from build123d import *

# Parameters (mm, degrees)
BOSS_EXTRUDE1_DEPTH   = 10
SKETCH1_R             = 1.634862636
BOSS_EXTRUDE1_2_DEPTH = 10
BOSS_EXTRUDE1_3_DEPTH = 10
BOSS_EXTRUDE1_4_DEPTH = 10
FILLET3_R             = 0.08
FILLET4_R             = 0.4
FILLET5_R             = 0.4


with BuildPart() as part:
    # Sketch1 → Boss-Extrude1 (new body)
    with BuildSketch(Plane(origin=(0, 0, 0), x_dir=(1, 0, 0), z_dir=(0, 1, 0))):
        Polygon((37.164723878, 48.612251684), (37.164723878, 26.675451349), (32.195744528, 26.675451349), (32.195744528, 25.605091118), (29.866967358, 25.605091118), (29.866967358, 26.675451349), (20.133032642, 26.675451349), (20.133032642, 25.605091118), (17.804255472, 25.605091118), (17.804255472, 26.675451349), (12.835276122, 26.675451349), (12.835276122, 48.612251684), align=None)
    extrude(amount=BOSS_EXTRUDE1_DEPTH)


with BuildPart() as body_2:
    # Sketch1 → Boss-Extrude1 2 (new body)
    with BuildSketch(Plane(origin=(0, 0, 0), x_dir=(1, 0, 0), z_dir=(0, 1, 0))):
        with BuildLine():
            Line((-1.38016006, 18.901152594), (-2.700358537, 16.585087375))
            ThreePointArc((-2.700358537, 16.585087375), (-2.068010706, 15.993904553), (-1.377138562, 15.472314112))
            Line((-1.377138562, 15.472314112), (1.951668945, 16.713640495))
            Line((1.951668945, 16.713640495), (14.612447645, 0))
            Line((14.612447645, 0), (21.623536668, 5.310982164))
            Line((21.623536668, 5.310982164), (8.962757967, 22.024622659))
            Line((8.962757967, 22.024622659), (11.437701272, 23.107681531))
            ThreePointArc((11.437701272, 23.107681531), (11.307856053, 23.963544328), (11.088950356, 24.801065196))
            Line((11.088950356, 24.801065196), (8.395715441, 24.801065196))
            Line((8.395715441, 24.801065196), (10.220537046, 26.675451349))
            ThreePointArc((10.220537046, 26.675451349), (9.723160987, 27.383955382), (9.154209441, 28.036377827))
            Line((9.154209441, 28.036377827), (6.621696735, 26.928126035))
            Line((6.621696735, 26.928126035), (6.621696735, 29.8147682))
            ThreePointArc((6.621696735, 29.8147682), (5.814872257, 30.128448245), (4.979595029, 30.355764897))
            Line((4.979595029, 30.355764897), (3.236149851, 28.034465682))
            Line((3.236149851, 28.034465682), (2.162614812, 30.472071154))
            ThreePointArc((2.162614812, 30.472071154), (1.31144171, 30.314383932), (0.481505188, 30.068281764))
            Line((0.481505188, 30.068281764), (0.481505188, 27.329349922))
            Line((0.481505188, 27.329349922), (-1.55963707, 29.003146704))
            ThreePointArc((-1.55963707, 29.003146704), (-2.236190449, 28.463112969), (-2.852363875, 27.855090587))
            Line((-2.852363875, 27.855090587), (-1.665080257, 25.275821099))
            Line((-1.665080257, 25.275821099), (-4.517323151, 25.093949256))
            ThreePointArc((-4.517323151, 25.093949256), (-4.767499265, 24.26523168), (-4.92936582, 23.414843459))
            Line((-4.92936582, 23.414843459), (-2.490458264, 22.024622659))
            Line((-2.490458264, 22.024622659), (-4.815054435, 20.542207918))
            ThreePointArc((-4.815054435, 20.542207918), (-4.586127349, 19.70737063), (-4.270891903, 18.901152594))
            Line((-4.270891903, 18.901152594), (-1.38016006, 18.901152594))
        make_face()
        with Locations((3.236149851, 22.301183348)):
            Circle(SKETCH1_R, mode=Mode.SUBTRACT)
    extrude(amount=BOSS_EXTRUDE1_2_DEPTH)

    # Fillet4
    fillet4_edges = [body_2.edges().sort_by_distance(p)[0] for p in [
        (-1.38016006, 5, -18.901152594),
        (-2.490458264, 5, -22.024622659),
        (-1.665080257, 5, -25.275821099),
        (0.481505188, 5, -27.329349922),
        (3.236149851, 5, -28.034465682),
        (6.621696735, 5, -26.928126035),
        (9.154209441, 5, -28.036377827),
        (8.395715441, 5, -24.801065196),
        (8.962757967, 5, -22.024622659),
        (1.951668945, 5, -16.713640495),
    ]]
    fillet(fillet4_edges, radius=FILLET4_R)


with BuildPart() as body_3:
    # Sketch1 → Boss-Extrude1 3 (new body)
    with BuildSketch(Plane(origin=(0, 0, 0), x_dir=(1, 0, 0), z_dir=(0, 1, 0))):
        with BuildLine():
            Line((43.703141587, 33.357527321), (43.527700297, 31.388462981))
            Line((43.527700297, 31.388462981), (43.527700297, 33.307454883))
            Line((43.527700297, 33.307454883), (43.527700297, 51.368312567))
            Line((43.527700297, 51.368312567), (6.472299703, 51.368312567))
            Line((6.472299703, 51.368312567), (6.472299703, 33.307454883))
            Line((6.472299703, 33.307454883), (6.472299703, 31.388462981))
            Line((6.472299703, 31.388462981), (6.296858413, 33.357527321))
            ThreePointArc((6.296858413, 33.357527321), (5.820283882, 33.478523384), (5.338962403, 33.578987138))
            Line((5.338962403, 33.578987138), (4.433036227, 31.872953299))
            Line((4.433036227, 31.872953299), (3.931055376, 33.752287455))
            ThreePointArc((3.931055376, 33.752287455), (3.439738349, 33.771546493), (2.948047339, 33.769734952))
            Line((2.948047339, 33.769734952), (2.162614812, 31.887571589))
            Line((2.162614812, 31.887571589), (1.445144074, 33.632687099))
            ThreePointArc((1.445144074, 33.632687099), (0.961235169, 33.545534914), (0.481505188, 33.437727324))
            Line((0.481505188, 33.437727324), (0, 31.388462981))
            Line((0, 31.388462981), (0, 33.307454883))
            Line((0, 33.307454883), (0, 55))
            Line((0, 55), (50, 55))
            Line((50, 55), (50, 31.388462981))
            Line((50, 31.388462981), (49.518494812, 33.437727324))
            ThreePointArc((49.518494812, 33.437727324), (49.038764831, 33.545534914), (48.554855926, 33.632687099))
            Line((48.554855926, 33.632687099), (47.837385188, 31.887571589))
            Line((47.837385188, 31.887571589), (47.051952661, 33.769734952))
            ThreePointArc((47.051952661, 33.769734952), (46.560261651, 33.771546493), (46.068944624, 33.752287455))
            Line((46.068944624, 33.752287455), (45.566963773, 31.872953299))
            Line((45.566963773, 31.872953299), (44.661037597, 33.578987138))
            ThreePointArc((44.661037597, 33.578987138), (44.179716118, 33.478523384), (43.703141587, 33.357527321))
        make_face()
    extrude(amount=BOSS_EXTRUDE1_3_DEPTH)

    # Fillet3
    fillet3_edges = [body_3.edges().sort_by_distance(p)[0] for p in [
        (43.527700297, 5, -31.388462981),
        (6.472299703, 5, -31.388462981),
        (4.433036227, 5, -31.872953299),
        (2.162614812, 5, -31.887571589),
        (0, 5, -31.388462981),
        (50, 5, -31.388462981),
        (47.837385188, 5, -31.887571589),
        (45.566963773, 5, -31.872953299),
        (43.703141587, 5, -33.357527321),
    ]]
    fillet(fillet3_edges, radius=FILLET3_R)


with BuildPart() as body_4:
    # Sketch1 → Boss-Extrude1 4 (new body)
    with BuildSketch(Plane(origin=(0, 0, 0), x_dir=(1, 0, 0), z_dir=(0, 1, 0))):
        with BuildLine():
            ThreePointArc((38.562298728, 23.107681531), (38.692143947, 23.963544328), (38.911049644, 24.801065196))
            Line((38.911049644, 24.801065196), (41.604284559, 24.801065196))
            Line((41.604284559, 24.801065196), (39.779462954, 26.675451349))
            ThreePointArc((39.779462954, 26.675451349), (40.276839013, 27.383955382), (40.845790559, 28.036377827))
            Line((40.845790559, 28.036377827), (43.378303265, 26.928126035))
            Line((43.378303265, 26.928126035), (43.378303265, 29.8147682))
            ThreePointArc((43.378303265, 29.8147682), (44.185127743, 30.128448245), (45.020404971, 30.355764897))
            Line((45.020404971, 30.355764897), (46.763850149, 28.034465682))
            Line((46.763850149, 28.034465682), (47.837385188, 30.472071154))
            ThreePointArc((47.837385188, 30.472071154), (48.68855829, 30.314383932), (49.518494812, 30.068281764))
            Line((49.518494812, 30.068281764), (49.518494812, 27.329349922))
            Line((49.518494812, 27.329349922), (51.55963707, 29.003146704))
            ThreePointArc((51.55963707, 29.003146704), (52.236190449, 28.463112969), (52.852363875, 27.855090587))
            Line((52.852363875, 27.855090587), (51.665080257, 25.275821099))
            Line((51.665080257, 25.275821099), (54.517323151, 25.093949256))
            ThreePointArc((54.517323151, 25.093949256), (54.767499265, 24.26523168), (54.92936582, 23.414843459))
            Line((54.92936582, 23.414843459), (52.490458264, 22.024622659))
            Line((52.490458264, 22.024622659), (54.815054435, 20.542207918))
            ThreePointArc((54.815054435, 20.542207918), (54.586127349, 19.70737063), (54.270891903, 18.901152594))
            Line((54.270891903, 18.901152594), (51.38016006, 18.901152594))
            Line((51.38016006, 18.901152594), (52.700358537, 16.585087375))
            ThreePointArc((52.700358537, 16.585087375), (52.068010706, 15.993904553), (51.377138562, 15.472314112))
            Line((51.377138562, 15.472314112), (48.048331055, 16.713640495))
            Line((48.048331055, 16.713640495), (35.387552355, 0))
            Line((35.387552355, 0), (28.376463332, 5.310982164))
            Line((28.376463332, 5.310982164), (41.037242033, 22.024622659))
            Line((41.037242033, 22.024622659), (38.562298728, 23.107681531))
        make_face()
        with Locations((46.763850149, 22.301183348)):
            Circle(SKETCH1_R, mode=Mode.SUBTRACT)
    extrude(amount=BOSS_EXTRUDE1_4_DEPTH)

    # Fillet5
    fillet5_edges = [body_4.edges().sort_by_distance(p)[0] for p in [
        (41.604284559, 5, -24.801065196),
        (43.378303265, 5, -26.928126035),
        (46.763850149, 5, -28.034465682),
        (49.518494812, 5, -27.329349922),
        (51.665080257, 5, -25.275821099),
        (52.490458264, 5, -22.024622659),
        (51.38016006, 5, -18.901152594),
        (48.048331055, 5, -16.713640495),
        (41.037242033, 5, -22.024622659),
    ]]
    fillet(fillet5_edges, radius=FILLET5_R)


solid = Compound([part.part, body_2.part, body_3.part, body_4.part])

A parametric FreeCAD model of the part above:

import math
import FreeCAD as App
import Part
import Sketcher
from FreeCAD import Vector
Q = App.Units.Quantity


def edges_at(feature, points):
    """Names of the edges that pass closest to the given points."""
    edges = feature.Shape.Edges
    near = lambda p: min(range(len(edges)), key=lambda i: edges[i].distToShape(Part.Vertex(*p))[0])
    return sorted({f"Edge{near(p) + 1}" for p in points})

doc = App.newDocument("Part")
body = doc.addObject("PartDesign::Body", "Body")

# Sketch on XZ plane
sketch1 = doc.addObject("Sketcher::SketchObject", "Sketch")
body.addObject(sketch1)
sketch1.AttachmentSupport = (doc.XZ_Plane, [""])
sketch1.MapMode = "FlatFace"
sketch1.addGeometry(Part.LineSegment(Vector(37.2, -26.7, 0), Vector(37.2, -48.6, 0)), False)
sketch1.addGeometry(Part.LineSegment(Vector(37.2, -48.6, 0), Vector(12.8, -48.6, 0)), False)
sketch1.addGeometry(Part.LineSegment(Vector(12.8, -48.6, 0), Vector(12.8, -26.7, 0)), False)
sketch1.addGeometry(Part.LineSegment(Vector(12.8, -26.7, 0), Vector(17.8, -26.7, 0)), False)
sketch1.addGeometry(Part.LineSegment(Vector(17.8, -26.7, 0), Vector(17.8, -25.6, 0)), False)
sketch1.addGeometry(Part.LineSegment(Vector(17.8, -25.6, 0), Vector(20.1, -25.6, 0)), False)
sketch1.addGeometry(Part.LineSegment(Vector(20.1, -25.6, 0), Vector(20.1, -26.7, 0)), False)
sketch1.addGeometry(Part.LineSegment(Vector(20.1, -26.7, 0), Vector(29.9, -26.7, 0)), False)
sketch1.addGeometry(Part.LineSegment(Vector(29.9, -26.7, 0), Vector(29.9, -25.6, 0)), False)
sketch1.addGeometry(Part.LineSegment(Vector(29.9, -25.6, 0), Vector(32.2, -25.6, 0)), False)
sketch1.addGeometry(Part.LineSegment(Vector(32.2, -25.6, 0), Vector(32.2, -26.7, 0)), False)
sketch1.addGeometry(Part.LineSegment(Vector(32.2, -26.7, 0), Vector(37.2, -26.7, 0)), False)
sketch1.addConstraint(Sketcher.Constraint("Coincident", 0, 2, 1, 1))
sketch1.addConstraint(Sketcher.Constraint("Coincident", 1, 2, 2, 1))
sketch1.addConstraint(Sketcher.Constraint("Coincident", 2, 2, 3, 1))
sketch1.addConstraint(Sketcher.Constraint("Coincident", 3, 2, 4, 1))
sketch1.addConstraint(Sketcher.Constraint("Coincident", 4, 2, 5, 1))
sketch1.addConstraint(Sketcher.Constraint("Coincident", 5, 2, 6, 1))
sketch1.addConstraint(Sketcher.Constraint("Coincident", 6, 2, 7, 1))
sketch1.addConstraint(Sketcher.Constraint("Coincident", 7, 2, 8, 1))
sketch1.addConstraint(Sketcher.Constraint("Coincident", 8, 2, 9, 1))
sketch1.addConstraint(Sketcher.Constraint("Coincident", 9, 2, 10, 1))
sketch1.addConstraint(Sketcher.Constraint("Coincident", 10, 2, 11, 1))
sketch1.addConstraint(Sketcher.Constraint("Coincident", 11, 2, 0, 1))
sketch1.addConstraint(Sketcher.Constraint("Vertical", 0))
sketch1.addConstraint(Sketcher.Constraint("Horizontal", 1))
sketch1.addConstraint(Sketcher.Constraint("Vertical", 2))
sketch1.addConstraint(Sketcher.Constraint("Horizontal", 3))
sketch1.addConstraint(Sketcher.Constraint("Vertical", 4))
sketch1.addConstraint(Sketcher.Constraint("Horizontal", 5))
sketch1.addConstraint(Sketcher.Constraint("Vertical", 6))
sketch1.addConstraint(Sketcher.Constraint("Horizontal", 7))
sketch1.addConstraint(Sketcher.Constraint("Vertical", 8))
sketch1.addConstraint(Sketcher.Constraint("Horizontal", 9))
sketch1.addConstraint(Sketcher.Constraint("Vertical", 10))
sketch1.addConstraint(Sketcher.Constraint("Horizontal", 11))
sketch1.addConstraint(Sketcher.Constraint("Horizontal", 3, 2, 6, 2))
sketch1.addConstraint(Sketcher.Constraint("Horizontal", 5, 2, 8, 2))
sketch1.addConstraint(Sketcher.Constraint("Horizontal", 7, 2, 10, 2))
sketch1.addConstraint(Sketcher.Constraint("Equal", 5, 9))
sketch1.addConstraint(Sketcher.Constraint("Equal", 3, 11))
sketch1.addConstraint(Sketcher.Constraint("DistanceY", 0, 2, 0, 1, Q("21.9368 mm")))
sketch1.addConstraint(Sketcher.Constraint("DistanceX", 3, 1, 3, 2, Q("4.968979 mm")))
sketch1.addConstraint(Sketcher.Constraint("DistanceY", 4, 1, 4, 2, Q("1.07036 mm")))
sketch1.addConstraint(Sketcher.Constraint("DistanceX", 1, 2, 1, 1, Q("24.329448 mm")))
sketch1.addConstraint(Sketcher.Constraint("DistanceX", 5, 1, 5, 2, Q("2.328777 mm")))
sketch1.addConstraint(Sketcher.Constraint("DistanceY", 0, 2, -1, 1, Q("48.612252 mm")))
sketch1.addConstraint(Sketcher.Constraint("DistanceX", -1, 1, 0, 2, Q("37.164724 mm")))
pad1 = doc.addObject("PartDesign::Pad", "Pad")
body.addObject(pad1)
pad1.Profile = sketch1
pad1.Length = 10
pad1.Reversed = True
body2 = doc.addObject("PartDesign::Body", "Body001")

# Sketch on XZ plane
sketch2 = doc.addObject("Sketcher::SketchObject", "Sketch001")
body2.addObject(sketch2)
sketch2.AttachmentSupport = (doc.getObject("XZ_Plane001"), [""])
sketch2.MapMode = "FlatFace"
sketch2.addGeometry(Part.LineSegment(Vector(-1.38016, -18.901153, 0), Vector(-2.700359, -16.585087, 0)), False)
sketch2.addGeometry(Part.ArcOfCircle(Part.Circle(Vector(3.23615, -22.301183, 0), Vector(0, 0, 1), 8.24111), math.radians(124.041257), math.radians(136.083637)), False)
sketch2.addGeometry(Part.LineSegment(Vector(-1.377139, -15.472314, 0), Vector(1.951669, -16.71364, 0)), False)
sketch2.addGeometry(Part.LineSegment(Vector(1.951669, -16.71364, 0), Vector(14.612448, 0, 0)), False)
sketch2.addGeometry(Part.LineSegment(Vector(14.612448, 0, 0), Vector(21.623537, -5.310982, 0)), False)
sketch2.addGeometry(Part.LineSegment(Vector(21.623537, -5.310982, 0), Vector(8.962758, -22.024623, 0)), False)
sketch2.addGeometry(Part.LineSegment(Vector(8.962758, -22.024623, 0), Vector(11.437701, -23.107682, 0)), False)
sketch2.addGeometry(Part.ArcOfCircle(Part.Circle(Vector(3.23615, -22.301183, 0), Vector(0, 0, 1), 8.241109), math.radians(-17.658495), math.radians(-5.616115)), False)
sketch2.addGeometry(Part.LineSegment(Vector(11.08895, -24.801065, 0), Vector(8.395715, -24.801065, 0)), False)
sketch2.addGeometry(Part.LineSegment(Vector(8.395715, -24.801065, 0), Vector(10.220537, -26.675451, 0)), False)
sketch2.addGeometry(Part.ArcOfCircle(Part.Circle(Vector(3.23615, -22.301183, 0), Vector(0, 0, 1), 8.241109), math.radians(-44.100977), math.radians(-32.058597)), False)
sketch2.addGeometry(Part.LineSegment(Vector(9.154209, -28.036378, 0), Vector(6.621697, -26.928126, 0)), False)
sketch2.addGeometry(Part.LineSegment(Vector(6.621697, -26.928126, 0), Vector(6.621697, -29.814768, 0)), False)
sketch2.addGeometry(Part.ArcOfCircle(Part.Circle(Vector(3.23615, -22.301183, 0), Vector(0, 0, 1), 8.24111), math.radians(-77.786525), math.radians(-65.744145)), False)
sketch2.addGeometry(Part.LineSegment(Vector(4.979595, -30.355765, 0), Vector(3.23615, -28.034466, 0)), False)
sketch2.addGeometry(Part.LineSegment(Vector(3.23615, -28.034466, 0), Vector(2.162615, -30.472071, 0)), False)
sketch2.addGeometry(Part.ArcOfCircle(Part.Circle(Vector(3.23615, -22.301183, 0), Vector(0, 0, 1), 8.241109), math.radians(-109.527334), math.radians(-97.484954)), False)
sketch2.addGeometry(Part.LineSegment(Vector(0.481505, -30.068282, 0), Vector(0.481505, -27.32935, 0)), False)
sketch2.addGeometry(Part.LineSegment(Vector(0.481505, -27.32935, 0), Vector(-1.559637, -29.003147, 0)), False)
sketch2.addGeometry(Part.ArcOfCircle(Part.Circle(Vector(3.23615, -22.301183, 0), Vector(0, 0, 1), 8.241109), math.radians(-137.629109), math.radians(-125.586729)), False)
sketch2.addGeometry(Part.LineSegment(Vector(-2.852364, -27.855091, 0), Vector(-1.66508, -25.275821, 0)), False)
sketch2.addGeometry(Part.LineSegment(Vector(-1.66508, -25.275821, 0), Vector(-4.517323, -25.093949, 0)), False)
sketch2.addGeometry(Part.ArcOfCircle(Part.Circle(Vector(3.23615, -22.301183, 0), Vector(0, 0, 1), 8.241109), math.radians(-172.233589), math.radians(-160.191209)), False)
sketch2.addGeometry(Part.LineSegment(Vector(-4.929366, -23.414843, 0), Vector(-2.490458, -22.024623, 0)), False)
sketch2.addGeometry(Part.LineSegment(Vector(-2.490458, -22.024623, 0), Vector(-4.815054, -20.542208, 0)), False)
sketch2.addGeometry(Part.ArcOfCircle(Part.Circle(Vector(3.23615, -22.301183, 0), Vector(0, 0, 1), 8.24111), math.radians(155.633648), math.radians(167.676028)), False)
sketch2.addGeometry(Part.LineSegment(Vector(-4.270892, -18.901153, 0), Vector(-1.38016, -18.901153, 0)), False)
sketch2.addGeometry(Part.Circle(Vector(3.23615, -22.301183, 0), Vector(0, 0, 1), 1.634863), False)
sketch2.addConstraint(Sketcher.Constraint("Coincident", 0, 2, 1, 2))
sketch2.addConstraint(Sketcher.Constraint("Coincident", 1, 1, 2, 1))
sketch2.addConstraint(Sketcher.Constraint("Coincident", 2, 2, 3, 1))
sketch2.addConstraint(Sketcher.Constraint("Coincident", 3, 2, 4, 1))
sketch2.addConstraint(Sketcher.Constraint("Coincident", 4, 2, 5, 1))
sketch2.addConstraint(Sketcher.Constraint("Coincident", 5, 2, 6, 1))
sketch2.addConstraint(Sketcher.Constraint("Coincident", 6, 2, 7, 2))
sketch2.addConstraint(Sketcher.Constraint("Coincident", 7, 1, 8, 1))
sketch2.addConstraint(Sketcher.Constraint("Coincident", 8, 2, 9, 1))
sketch2.addConstraint(Sketcher.Constraint("Coincident", 9, 2, 10, 2))
sketch2.addConstraint(Sketcher.Constraint("Coincident", 10, 1, 11, 1))
sketch2.addConstraint(Sketcher.Constraint("Coincident", 11, 2, 12, 1))
sketch2.addConstraint(Sketcher.Constraint("Coincident", 12, 2, 13, 2))
sketch2.addConstraint(Sketcher.Constraint("Coincident", 13, 1, 14, 1))
sketch2.addConstraint(Sketcher.Constraint("Coincident", 14, 2, 15, 1))
sketch2.addConstraint(Sketcher.Constraint("Coincident", 15, 2, 16, 2))
sketch2.addConstraint(Sketcher.Constraint("Coincident", 16, 1, 17, 1))
sketch2.addConstraint(Sketcher.Constraint("Coincident", 17, 2, 18, 1))
sketch2.addConstraint(Sketcher.Constraint("Coincident", 18, 2, 19, 2))
sketch2.addConstraint(Sketcher.Constraint("Coincident", 19, 1, 20, 1))
sketch2.addConstraint(Sketcher.Constraint("Coincident", 20, 2, 21, 1))
sketch2.addConstraint(Sketcher.Constraint("Coincident", 21, 2, 22, 2))
sketch2.addConstraint(Sketcher.Constraint("Coincident", 22, 1, 23, 1))
sketch2.addConstraint(Sketcher.Constraint("Coincident", 23, 2, 24, 1))
sketch2.addConstraint(Sketcher.Constraint("Coincident", 24, 2, 25, 2))
sketch2.addConstraint(Sketcher.Constraint("Coincident", 25, 1, 26, 1))
sketch2.addConstraint(Sketcher.Constraint("Coincident", 26, 2, 0, 1))
sketch2.addConstraint(Sketcher.Constraint("Horizontal", 8))
sketch2.addConstraint(Sketcher.Constraint("Vertical", 12))
sketch2.addConstraint(Sketcher.Constraint("Vertical", 17))
sketch2.addConstraint(Sketcher.Constraint("Horizontal", 26))
sketch2.addConstraint(Sketcher.Constraint("Coincident", 7, 3, 1, 3))
sketch2.addConstraint(Sketcher.Constraint("Coincident", 10, 3, 1, 3))
sketch2.addConstraint(Sketcher.Constraint("Coincident", 13, 3, 1, 3))
sketch2.addConstraint(Sketcher.Constraint("Coincident", 16, 3, 1, 3))
sketch2.addConstraint(Sketcher.Constraint("Coincident", 19, 3, 1, 3))
sketch2.addConstraint(Sketcher.Constraint("Coincident", 22, 3, 1, 3))
sketch2.addConstraint(Sketcher.Constraint("Coincident", 25, 3, 1, 3))
sketch2.addConstraint(Sketcher.Constraint("Coincident", 27, 3, 1, 3))
sketch2.addConstraint(Sketcher.Constraint("PointOnObject", 3, 2, -1))
sketch2.addConstraint(Sketcher.Constraint("Radius", 1, Q("8.24111 mm")))
sketch2.addConstraint(Sketcher.Constraint("Radius", 7, Q("8.241109 mm")))
sketch2.addConstraint(Sketcher.Constraint("Radius", 10, Q("8.241109 mm")))
sketch2.addConstraint(Sketcher.Constraint("Radius", 13, Q("8.24111 mm")))
sketch2.addConstraint(Sketcher.Constraint("Radius", 16, Q("8.241109 mm")))
sketch2.addConstraint(Sketcher.Constraint("Radius", 19, Q("8.241109 mm")))
sketch2.addConstraint(Sketcher.Constraint("Radius", 22, Q("8.241109 mm")))
sketch2.addConstraint(Sketcher.Constraint("Radius", 25, Q("8.24111 mm")))
sketch2.addConstraint(Sketcher.Constraint("Diameter", 27, Q("3.269725 mm")))
sketch2.addConstraint(Sketcher.Constraint("DistanceX", 22, 1, 19, 1, Q("2.077002 mm")))
sketch2.addConstraint(Sketcher.Constraint("DistanceX", 26, 1, 26, 2, Q("2.890732 mm")))
sketch2.addConstraint(Sketcher.Constraint("DistanceY", 17, 1, 17, 2, Q("2.738932 mm")))
sketch2.addConstraint(Sketcher.Constraint("DistanceX", -1, 1, 6, 2, Q("11.437701 mm")))
sketch2.addConstraint(Sketcher.Constraint("DistanceY", 7, 3, 4, 2, Q("16.990201 mm")))
sketch2.addConstraint(Sketcher.Constraint("DistanceY", 6, 2, 25, 3, Q("0.806498 mm")))
sketch2.addConstraint(Sketcher.Constraint("DistanceX", 25, 3, 7, 1, Q("7.8528 mm")))
sketch2.addConstraint(Sketcher.Constraint("DistanceX", 13, 1, 12, 2, Q("1.642102 mm")))
sketch2.addConstraint(Sketcher.Constraint("DistanceY", 13, 1, 8, 2, Q("5.5547 mm")))
sketch2.addConstraint(Sketcher.Constraint("DistanceY", 13, 1, 14, 2, Q("2.321299 mm")))
sketch2.addConstraint(Sketcher.Constraint("DistanceY", 17, 2, 21, 2, Q("2.235401 mm")))
sketch2.addConstraint(Sketcher.Constraint("DistanceY", 20, 2, 23, 2, Q("3.251198 mm")))
sketch2.addConstraint(Sketcher.Constraint("DistanceX", 0, 2, 23, 2, Q("0.2099 mm")))
sketch2.addConstraint(Sketcher.Constraint("DistanceX", 0, 2, 26, 2, Q("1.320198 mm")))
sketch2.addConstraint(Sketcher.Constraint("Distance", 0, Q("2.665911 mm")))
sketch2.addConstraint(Sketcher.Constraint("Distance", 3, Q("20.96762 mm")))
sketch2.addConstraint(Sketcher.Constraint("Distance", 4, Q("8.795561 mm")))
sketch2.addConstraint(Sketcher.Constraint("Distance", 5, Q("20.96762 mm")))
sketch2.addConstraint(Sketcher.Constraint("Distance", 9, Q("2.61597 mm")))
sketch2.addConstraint(Sketcher.Constraint("Distance", 11, Q("2.764388 mm")))
sketch2.addConstraint(Sketcher.Constraint("Distance", 15, Q("2.663531 mm")))
sketch2.addConstraint(Sketcher.Constraint("Distance", 18, Q("2.63967 mm")))
sketch2.addConstraint(Sketcher.Constraint("Distance", 23, Q("2.807309 mm")))
sketch2.addConstraint(Sketcher.Constraint("DistanceX", 8, 2, 8, 1, Q("2.693235 mm")))
sketch2.addConstraint(Sketcher.Constraint("DistanceY", 12, 2, 12, 1, Q("2.886642 mm")))
sketch2.addConstraint(Sketcher.Constraint("DistanceX", 1, 1, -1, 1, Q("1.377139 mm")))
sketch2.addConstraint(Sketcher.Constraint("DistanceX", -1, 1, 2, 2, Q("1.951669 mm")))
sketch2.addConstraint(Sketcher.Constraint("DistanceY", 2, 2, -1, 1, Q("16.71364 mm")))
sketch2.addConstraint(Sketcher.Constraint("DistanceY", 6, 2, -1, 1, Q("23.107682 mm")))
sketch2.addConstraint(Sketcher.Constraint("DistanceX", -1, 1, 14, 2, Q("3.23615 mm")))
sketch2.addConstraint(Sketcher.Constraint("DistanceY", 16, 1, -1, 1, Q("30.068282 mm")))
sketch2.addConstraint(Sketcher.Constraint("DistanceY", 19, 1, -1, 1, Q("27.855091 mm")))
sketch2.addConstraint(Sketcher.Constraint("DistanceX", 20, 2, -1, 1, Q("1.66508 mm")))
sketch2.addConstraint(Sketcher.Constraint("DistanceY", 7, 3, 5, 2, Q("0.276561 mm")))
sketch2.addConstraint(Sketcher.Constraint("DistanceX", 22, 1, 24, 2, Q("0.114311 mm")))
pad2 = doc.addObject("PartDesign::Pad", "Pad001")
body2.addObject(pad2)
pad2.Profile = sketch2
pad2.Length = 10
pad2.Reversed = True
doc.recompute()

fillet = doc.addObject("PartDesign::Fillet", "Fillet")
body2.addObject(fillet)
fillet.Base = (pad2, edges_at(pad2, [
    (-1.38, 5, -18.901),
    (-2.49, 5, -22.025),
    (-1.665, 5, -25.276),
    (0.482, 5, -27.329),
    (3.236, 5, -28.034),
    (6.622, 5, -26.928),
    (9.154, 5, -28.036),
    (8.396, 5, -24.801),
    (8.963, 5, -22.025),
    (1.952, 5, -16.714),
]))
fillet.Radius = 0.4
body3 = doc.addObject("PartDesign::Body", "Body002")

# Sketch on XZ plane
sketch3 = doc.addObject("Sketcher::SketchObject", "Sketch002")
body3.addObject(sketch3)
sketch3.AttachmentSupport = (doc.getObject("XZ_Plane002"), [""])
sketch3.MapMode = "FlatFace"
sketch3.addGeometry(Part.LineSegment(Vector(43.5, -31.4, 0), Vector(43.7, -33.4, 0)), False)
sketch3.addGeometry(Part.ArcOfCircle(Part.Circle(Vector(46.8, -22.3, 0), Vector(0, 0, 1), 11.5), math.radians(-105.47), math.radians(-100.56)), False)
sketch3.addGeometry(Part.LineSegment(Vector(44.7, -33.6, 0), Vector(45.6, -31.9, 0)), False)
sketch3.addGeometry(Part.LineSegment(Vector(45.6, -31.9, 0), Vector(46.1, -33.8, 0)), False)
sketch3.addGeometry(Part.ArcOfCircle(Part.Circle(Vector(46.8, -22.3, 0), Vector(0, 0, 1), 11.5), math.radians(-93.47), math.radians(-88.56)), False)
sketch3.addGeometry(Part.LineSegment(Vector(47.1, -33.8, 0), Vector(47.8, -31.9, 0)), False)
sketch3.addGeometry(Part.LineSegment(Vector(47.8, -31.9, 0), Vector(48.6, -33.6, 0)), False)
sketch3.addGeometry(Part.ArcOfCircle(Part.Circle(Vector(46.8, -22.3, 0), Vector(0, 0, 1), 11.5), math.radians(-81.02), math.radians(-76.11)), False)
sketch3.addGeometry(Part.LineSegment(Vector(49.5, -33.4, 0), Vector(50, -31.4, 0)), False)
sketch3.addGeometry(Part.LineSegment(Vector(50, -31.4, 0), Vector(50, -55, 0)), False)
sketch3.addGeometry(Part.LineSegment(Vector(50, -55, 0), Vector(0, -55, 0)), False)
sketch3.addGeometry(Part.LineSegment(Vector(0, -55, 0), Vector(0, -31.4, 0)), False)
sketch3.addGeometry(Part.LineSegment(Vector(0, -31.4, 0), Vector(0.5, -33.4, 0)), False)
sketch3.addGeometry(Part.ArcOfCircle(Part.Circle(Vector(3.2, -22.3, 0), Vector(0, 0, 1), 11.5), math.radians(-103.89), math.radians(-98.98)), False)
sketch3.addGeometry(Part.LineSegment(Vector(1.4, -33.6, 0), Vector(2.2, -31.9, 0)), False)
sketch3.addGeometry(Part.LineSegment(Vector(2.2, -31.9, 0), Vector(2.9, -33.8, 0)), False)
sketch3.addGeometry(Part.ArcOfCircle(Part.Circle(Vector(3.2, -22.3, 0), Vector(0, 0, 1), 11.5), math.radians(-91.44), math.radians(-86.53)), False)
sketch3.addGeometry(Part.LineSegment(Vector(3.9, -33.8, 0), Vector(4.4, -31.9, 0)), False)
sketch3.addGeometry(Part.LineSegment(Vector(4.4, -31.9, 0), Vector(5.3, -33.6, 0)), False)
sketch3.addGeometry(Part.ArcOfCircle(Part.Circle(Vector(3.2, -22.3, 0), Vector(0, 0, 1), 11.5), math.radians(-79.44), math.radians(-74.53)), False)
sketch3.addGeometry(Part.LineSegment(Vector(6.3, -33.4, 0), Vector(6.5, -31.4, 0)), False)
sketch3.addGeometry(Part.LineSegment(Vector(6.5, -31.4, 0), Vector(6.5, -51.4, 0)), False)
sketch3.addGeometry(Part.LineSegment(Vector(6.5, -51.4, 0), Vector(43.5, -51.4, 0)), False)
sketch3.addGeometry(Part.LineSegment(Vector(43.5, -51.4, 0), Vector(43.5, -31.4, 0)), False)
sketch3.addConstraint(Sketcher.Constraint("Coincident", 0, 2, 1, 1))
sketch3.addConstraint(Sketcher.Constraint("Coincident", 1, 2, 2, 1))
sketch3.addConstraint(Sketcher.Constraint("Coincident", 2, 2, 3, 1))
sketch3.addConstraint(Sketcher.Constraint("Coincident", 3, 2, 4, 1))
sketch3.addConstraint(Sketcher.Constraint("Coincident", 4, 2, 5, 1))
sketch3.addConstraint(Sketcher.Constraint("Coincident", 5, 2, 6, 1))
sketch3.addConstraint(Sketcher.Constraint("Coincident", 6, 2, 7, 1))
sketch3.addConstraint(Sketcher.Constraint("Coincident", 7, 2, 8, 1))
sketch3.addConstraint(Sketcher.Constraint("Coincident", 8, 2, 9, 1))
sketch3.addConstraint(Sketcher.Constraint("Coincident", 9, 2, 10, 1))
sketch3.addConstraint(Sketcher.Constraint("Coincident", 10, 2, 11, 1))
sketch3.addConstraint(Sketcher.Constraint("Coincident", 11, 2, 12, 1))
sketch3.addConstraint(Sketcher.Constraint("Coincident", 12, 2, 13, 1))
sketch3.addConstraint(Sketcher.Constraint("Coincident", 13, 2, 14, 1))
sketch3.addConstraint(Sketcher.Constraint("Coincident", 14, 2, 15, 1))
sketch3.addConstraint(Sketcher.Constraint("Coincident", 15, 2, 16, 1))
sketch3.addConstraint(Sketcher.Constraint("Coincident", 16, 2, 17, 1))
sketch3.addConstraint(Sketcher.Constraint("Coincident", 17, 2, 18, 1))
sketch3.addConstraint(Sketcher.Constraint("Coincident", 18, 2, 19, 1))
sketch3.addConstraint(Sketcher.Constraint("Coincident", 19, 2, 20, 1))
sketch3.addConstraint(Sketcher.Constraint("Coincident", 20, 2, 21, 1))
sketch3.addConstraint(Sketcher.Constraint("Coincident", 21, 2, 22, 1))
sketch3.addConstraint(Sketcher.Constraint("Coincident", 22, 2, 23, 1))
sketch3.addConstraint(Sketcher.Constraint("Coincident", 23, 2, 0, 1))
sketch3.addConstraint(Sketcher.Constraint("Vertical", 9))
sketch3.addConstraint(Sketcher.Constraint("Horizontal", 10))
sketch3.addConstraint(Sketcher.Constraint("Vertical", 11))
sketch3.addConstraint(Sketcher.Constraint("Vertical", 21))
sketch3.addConstraint(Sketcher.Constraint("Horizontal", 22))
sketch3.addConstraint(Sketcher.Constraint("Vertical", 23))
sketch3.addConstraint(Sketcher.Constraint("Coincident", 4, 3, 1, 3))
sketch3.addConstraint(Sketcher.Constraint("Coincident", 7, 3, 1, 3))
sketch3.addConstraint(Sketcher.Constraint("Coincident", 16, 3, 13, 3))
sketch3.addConstraint(Sketcher.Constraint("Coincident", 19, 3, 13, 3))
sketch3.addConstraint(Sketcher.Constraint("Equal", 1, 4))
sketch3.addConstraint(Sketcher.Constraint("Equal", 4, 7))
sketch3.addConstraint(Sketcher.Constraint("Equal", 7, 13))
sketch3.addConstraint(Sketcher.Constraint("Equal", 13, 16))
sketch3.addConstraint(Sketcher.Constraint("Equal", 16, 19))
sketch3.addConstraint(Sketcher.Constraint("PointOnObject", 10, 2, -2))
sketch3.addConstraint(Sketcher.Constraint("Horizontal", 7, 3, 13, 3))
sketch3.addConstraint(Sketcher.Constraint("Horizontal", 8, 2, 11, 2))
sketch3.addConstraint(Sketcher.Constraint("Horizontal", 7, 2, 12, 2))
sketch3.addConstraint(Sketcher.Constraint("Horizontal", 6, 2, 13, 2))
sketch3.addConstraint(Sketcher.Constraint("Horizontal", 5, 2, 14, 2))
sketch3.addConstraint(Sketcher.Constraint("Horizontal", 4, 2, 15, 2))
sketch3.addConstraint(Sketcher.Constraint("Horizontal", 3, 2, 16, 2))
sketch3.addConstraint(Sketcher.Constraint("Horizontal", 2, 2, 17, 2))
sketch3.addConstraint(Sketcher.Constraint("Horizontal", 1, 2, 18, 2))
sketch3.addConstraint(Sketcher.Constraint("Horizontal", 0, 2, 19, 2))
sketch3.addConstraint(Sketcher.Constraint("Horizontal", 11, 2, 20, 2))
sketch3.addConstraint(Sketcher.Constraint("Horizontal", 20, 2, 23, 2))
sketch3.addConstraint(Sketcher.Constraint("Equal", 8, 12))
sketch3.addConstraint(Sketcher.Constraint("Equal", 6, 14))
sketch3.addConstraint(Sketcher.Constraint("Equal", 3, 17))
sketch3.addConstraint(Sketcher.Constraint("Equal", 0, 20))
sketch3.addConstraint(Sketcher.Constraint("DistanceX", 10, 2, 10, 1, Q("50 mm")))
sketch3.addConstraint(Sketcher.Constraint("DistanceY", 9, 2, -1, 1, Q("55 mm")))
sketch3.addConstraint(Sketcher.Constraint("Radius", 1, Q("11.472169 mm")))
sketch3.addConstraint(Sketcher.Constraint("DistanceX", 22, 1, 22, 2, Q("37.055401 mm")))
sketch3.addConstraint(Sketcher.Constraint("DistanceY", 21, 2, 21, 1, Q("19.97985 mm")))
sketch3.addConstraint(Sketcher.Constraint("DistanceX", 13, 3, 1, 3, Q("43.5277 mm")))
sketch3.addConstraint(Sketcher.Constraint("DistanceY", 3, 2, 1, 2, Q("0.1733 mm")))
sketch3.addConstraint(Sketcher.Constraint("DistanceY", 3, 2, 6, 2, Q("0.1196 mm")))
sketch3.addConstraint(Sketcher.Constraint("Distance", 3, Q("1.94522 mm")))
sketch3.addConstraint(Sketcher.Constraint("Distance", 5, Q("2.039471 mm")))
sketch3.addConstraint(Sketcher.Constraint("DistanceY", 9, 2, 9, 1, Q("23.611537 mm")))
sketch3.addConstraint(Sketcher.Constraint("DistanceX", -1, 1, 0, 2, Q("43.703142 mm")))
sketch3.addConstraint(Sketcher.Constraint("DistanceY", 5, 2, -1, 1, Q("31.887572 mm")))
sketch3.addConstraint(Sketcher.Constraint("DistanceY", 1, 2, 0, 2, Q("0.22146 mm")))
sketch3.addConstraint(Sketcher.Constraint("DistanceY", 2, 2, 1, 3, Q("9.571769 mm")))
sketch3.addConstraint(Sketcher.Constraint("DistanceX", 3, 2, 4, 2, Q("0.983008 mm")))
sketch3.addConstraint(Sketcher.Constraint("DistanceX", 2, 2, 5, 2, Q("2.270421 mm")))
sketch3.addConstraint(Sketcher.Constraint("DistanceX", 6, 2, 7, 2, Q("0.963639 mm")))
pad3 = doc.addObject("PartDesign::Pad", "Pad002")
body3.addObject(pad3)
pad3.Profile = sketch3
pad3.Length = 10
pad3.Reversed = True
doc.recompute()

fillet2 = doc.addObject("PartDesign::Fillet", "Fillet001")
body3.addObject(fillet2)
fillet2.Base = (pad3, edges_at(pad3, [
    (43.528, 5, -31.388),
    (6.472, 5, -31.388),
    (4.433, 5, -31.873),
    (2.163, 5, -31.888),
    (0, 5, -31.388),
    (50, 5, -31.388),
    (47.837, 5, -31.888),
    (45.567, 5, -31.873),
    (43.703, 5, -33.358),
]))
fillet2.Radius = 0.08
body4 = doc.addObject("PartDesign::Body", "Body003")

# Sketch on XZ plane
sketch4 = doc.addObject("Sketcher::SketchObject", "Sketch003")
body4.addObject(sketch4)
sketch4.AttachmentSupport = (doc.getObject("XZ_Plane003"), [""])
sketch4.MapMode = "FlatFace"
sketch4.addGeometry(Part.ArcOfCircle(Part.Circle(Vector(46.8, -22.3, 0), Vector(0, 0, 1), 8.2), math.radians(-174.38), math.radians(-162.34)), False)
sketch4.addGeometry(Part.LineSegment(Vector(38.6, -23.1, 0), Vector(41, -22, 0)), False)
sketch4.addGeometry(Part.LineSegment(Vector(41, -22, 0), Vector(28.4, -5.3, 0)), False)
sketch4.addGeometry(Part.LineSegment(Vector(28.4, -5.3, 0), Vector(35.4, 0, 0)), False)
sketch4.addGeometry(Part.LineSegment(Vector(35.4, 0, 0), Vector(48, -16.7, 0)), False)
sketch4.addGeometry(Part.LineSegment(Vector(48, -16.7, 0), Vector(51.4, -15.5, 0)), False)
sketch4.addGeometry(Part.ArcOfCircle(Part.Circle(Vector(46.8, -22.3, 0), Vector(0, 0, 1), 8.2), math.radians(43.92), math.radians(55.96)), False)
sketch4.addGeometry(Part.LineSegment(Vector(52.7, -16.6, 0), Vector(51.4, -18.9, 0)), False)
sketch4.addGeometry(Part.LineSegment(Vector(51.4, -18.9, 0), Vector(54.3, -18.9, 0)), False)
sketch4.addGeometry(Part.ArcOfCircle(Part.Circle(Vector(46.8, -22.3, 0), Vector(0, 0, 1), 8.2), math.radians(12.32), math.radians(24.37)), False)
sketch4.addGeometry(Part.LineSegment(Vector(54.8, -20.5, 0), Vector(52.5, -22, 0)), False)
sketch4.addGeometry(Part.LineSegment(Vector(52.5, -22, 0), Vector(54.9, -23.4, 0)), False)
sketch4.addGeometry(Part.ArcOfCircle(Part.Circle(Vector(46.8, -22.3, 0), Vector(0, 0, 1), 8.2), math.radians(-19.81), math.radians(-7.77)), False)
sketch4.addGeometry(Part.LineSegment(Vector(54.5, -25.1, 0), Vector(51.7, -25.3, 0)), False)
sketch4.addGeometry(Part.LineSegment(Vector(51.7, -25.3, 0), Vector(52.9, -27.9, 0)), False)
sketch4.addGeometry(Part.ArcOfCircle(Part.Circle(Vector(46.8, -22.3, 0), Vector(0, 0, 1), 8.2), math.radians(-54.41), math.radians(-42.37)), False)
sketch4.addGeometry(Part.LineSegment(Vector(51.6, -29, 0), Vector(49.5, -27.3, 0)), False)
sketch4.addGeometry(Part.LineSegment(Vector(49.5, -27.3, 0), Vector(49.5, -30.1, 0)), False)
sketch4.addGeometry(Part.ArcOfCircle(Part.Circle(Vector(46.8, -22.3, 0), Vector(0, 0, 1), 8.2), math.radians(-82.52), math.radians(-70.47)), False)
sketch4.addGeometry(Part.LineSegment(Vector(47.8, -30.5, 0), Vector(46.8, -28, 0)), False)
sketch4.addGeometry(Part.LineSegment(Vector(46.8, -28, 0), Vector(45, -30.4, 0)), False)
sketch4.addGeometry(Part.ArcOfCircle(Part.Circle(Vector(46.8, -22.3, 0), Vector(0, 0, 1), 8.2), math.radians(-114.26), math.radians(-102.21)), False)
sketch4.addGeometry(Part.LineSegment(Vector(43.4, -29.8, 0), Vector(43.4, -26.9, 0)), False)
sketch4.addGeometry(Part.LineSegment(Vector(43.4, -26.9, 0), Vector(40.8, -28, 0)), False)
sketch4.addGeometry(Part.ArcOfCircle(Part.Circle(Vector(46.8, -22.3, 0), Vector(0, 0, 1), 8.2), math.radians(-147.94), math.radians(-135.9)), False)
sketch4.addGeometry(Part.LineSegment(Vector(39.8, -26.7, 0), Vector(41.6, -24.8, 0)), False)
sketch4.addGeometry(Part.LineSegment(Vector(41.6, -24.8, 0), Vector(38.9, -24.8, 0)), False)
sketch4.addGeometry(Part.Circle(Vector(46.8, -22.3, 0), Vector(0, 0, 1), 1.6), False)
sketch4.addConstraint(Sketcher.Constraint("Coincident", 0, 1, 1, 1))
sketch4.addConstraint(Sketcher.Constraint("Coincident", 1, 2, 2, 1))
sketch4.addConstraint(Sketcher.Constraint("Coincident", 2, 2, 3, 1))
sketch4.addConstraint(Sketcher.Constraint("Coincident", 3, 2, 4, 1))
sketch4.addConstraint(Sketcher.Constraint("Coincident", 4, 2, 5, 1))
sketch4.addConstraint(Sketcher.Constraint("Coincident", 5, 2, 6, 2))
sketch4.addConstraint(Sketcher.Constraint("Coincident", 6, 1, 7, 1))
sketch4.addConstraint(Sketcher.Constraint("Coincident", 7, 2, 8, 1))
sketch4.addConstraint(Sketcher.Constraint("Coincident", 8, 2, 9, 2))
sketch4.addConstraint(Sketcher.Constraint("Coincident", 9, 1, 10, 1))
sketch4.addConstraint(Sketcher.Constraint("Coincident", 10, 2, 11, 1))
sketch4.addConstraint(Sketcher.Constraint("Coincident", 11, 2, 12, 2))
sketch4.addConstraint(Sketcher.Constraint("Coincident", 12, 1, 13, 1))
sketch4.addConstraint(Sketcher.Constraint("Coincident", 13, 2, 14, 1))
sketch4.addConstraint(Sketcher.Constraint("Coincident", 14, 2, 15, 2))
sketch4.addConstraint(Sketcher.Constraint("Coincident", 15, 1, 16, 1))
sketch4.addConstraint(Sketcher.Constraint("Coincident", 16, 2, 17, 1))
sketch4.addConstraint(Sketcher.Constraint("Coincident", 17, 2, 18, 2))
sketch4.addConstraint(Sketcher.Constraint("Coincident", 18, 1, 19, 1))
sketch4.addConstraint(Sketcher.Constraint("Coincident", 19, 2, 20, 1))
sketch4.addConstraint(Sketcher.Constraint("Coincident", 20, 2, 21, 2))
sketch4.addConstraint(Sketcher.Constraint("Coincident", 21, 1, 22, 1))
sketch4.addConstraint(Sketcher.Constraint("Coincident", 22, 2, 23, 1))
sketch4.addConstraint(Sketcher.Constraint("Coincident", 23, 2, 24, 2))
sketch4.addConstraint(Sketcher.Constraint("Coincident", 24, 1, 25, 1))
sketch4.addConstraint(Sketcher.Constraint("Coincident", 25, 2, 26, 1))
sketch4.addConstraint(Sketcher.Constraint("Coincident", 26, 2, 0, 2))
sketch4.addConstraint(Sketcher.Constraint("Horizontal", 8))
sketch4.addConstraint(Sketcher.Constraint("Vertical", 17))
sketch4.addConstraint(Sketcher.Constraint("Vertical", 22))
sketch4.addConstraint(Sketcher.Constraint("Horizontal", 26))
sketch4.addConstraint(Sketcher.Constraint("Coincident", 6, 3, 0, 3))
sketch4.addConstraint(Sketcher.Constraint("Coincident", 9, 3, 0, 3))
sketch4.addConstraint(Sketcher.Constraint("Coincident", 12, 3, 0, 3))
sketch4.addConstraint(Sketcher.Constraint("Coincident", 15, 3, 0, 3))
sketch4.addConstraint(Sketcher.Constraint("Coincident", 18, 3, 0, 3))
sketch4.addConstraint(Sketcher.Constraint("Coincident", 21, 3, 0, 3))
sketch4.addConstraint(Sketcher.Constraint("Coincident", 24, 3, 0, 3))
sketch4.addConstraint(Sketcher.Constraint("Coincident", 27, 3, 0, 3))
sketch4.addConstraint(Sketcher.Constraint("Equal", 0, 6))
sketch4.addConstraint(Sketcher.Constraint("Equal", 6, 9))
sketch4.addConstraint(Sketcher.Constraint("Equal", 9, 12))
sketch4.addConstraint(Sketcher.Constraint("Equal", 12, 15))
sketch4.addConstraint(Sketcher.Constraint("Equal", 15, 18))
sketch4.addConstraint(Sketcher.Constraint("Equal", 18, 21))
sketch4.addConstraint(Sketcher.Constraint("Equal", 21, 24))
sketch4.addConstraint(Sketcher.Constraint("PointOnObject", 3, 2, -1))
sketch4.addConstraint(Sketcher.Constraint("Perpendicular", 2, 3))
sketch4.addConstraint(Sketcher.Constraint("Perpendicular", 3, 4))
sketch4.addConstraint(Sketcher.Constraint("Perpendicular", 7, 11))
sketch4.addConstraint(Sketcher.Constraint("Parallel", 1, 23))
sketch4.addConstraint(Sketcher.Constraint("Horizontal", 1, 2, 10, 2))
sketch4.addConstraint(Sketcher.Constraint("Vertical", 27, 3, 19, 2))
sketch4.addConstraint(Sketcher.Constraint("Equal", 2, 4))
sketch4.addConstraint(Sketcher.Constraint("Radius", 0, Q("8.241109 mm")))
sketch4.addConstraint(Sketcher.Constraint("Diameter", 27, Q("3.269725 mm")))
sketch4.addConstraint(Sketcher.Constraint("DistanceX", 14, 2, 11, 2, Q("2.077002 mm")))
sketch4.addConstraint(Sketcher.Constraint("DistanceX", 8, 1, 8, 2, Q("2.890732 mm")))
sketch4.addConstraint(Sketcher.Constraint("DistanceY", 17, 2, 17, 1, Q("2.738932 mm")))
sketch4.addConstraint(Sketcher.Constraint("DistanceX", -1, 1, 0, 1, Q("38.562299 mm")))
sketch4.addConstraint(Sketcher.Constraint("DistanceY", 0, 1, 9, 3, Q("0.806498 mm")))
sketch4.addConstraint(Sketcher.Constraint("DistanceY", 0, 1, 2, 2, Q("17.796699 mm")))
sketch4.addConstraint(Sketcher.Constraint("DistanceX", 7, 2, 6, 1, Q("1.320198 mm")))
sketch4.addConstraint(Sketcher.Constraint("DistanceX", 7, 2, 10, 2, Q("1.110298 mm")))
sketch4.addConstraint(Sketcher.Constraint("DistanceY", 13, 2, 10, 2, Q("3.251198 mm")))
sketch4.addConstraint(Sketcher.Constraint("DistanceY", 16, 2, 12, 1, Q("2.235401 mm")))
sketch4.addConstraint(Sketcher.Constraint("DistanceY", 20, 2, 19, 2, Q("2.321299 mm")))
sketch4.addConstraint(Sketcher.Constraint("DistanceX", 21, 1, 20, 2, Q("1.642102 mm")))
sketch4.addConstraint(Sketcher.Constraint("Distance", 2, Q("20.96762 mm")))
sketch4.addConstraint(Sketcher.Constraint("Distance", 3, Q("8.795561 mm")))
sketch4.addConstraint(Sketcher.Constraint("Distance", 7, Q("2.665911 mm")))
sketch4.addConstraint(Sketcher.Constraint("Distance", 11, Q("2.807309 mm")))
sketch4.addConstraint(Sketcher.Constraint("Distance", 16, Q("2.63967 mm")))
sketch4.addConstraint(Sketcher.Constraint("Distance", 19, Q("2.663531 mm")))
sketch4.addConstraint(Sketcher.Constraint("Distance", 23, Q("2.764388 mm")))
sketch4.addConstraint(Sketcher.Constraint("Distance", 25, Q("2.61597 mm")))
sketch4.addConstraint(Sketcher.Constraint("DistanceX", 26, 2, 26, 1, Q("2.693235 mm")))
sketch4.addConstraint(Sketcher.Constraint("DistanceY", 22, 1, 22, 2, Q("2.886642 mm")))
sketch4.addConstraint(Sketcher.Constraint("DistanceX", -1, 1, 4, 2, Q("48.048331 mm")))
sketch4.addConstraint(Sketcher.Constraint("DistanceX", -1, 1, 5, 2, Q("51.377139 mm")))
sketch4.addConstraint(Sketcher.Constraint("DistanceY", 12, 1, -1, 1, Q("25.093949 mm")))
sketch4.addConstraint(Sketcher.Constraint("DistanceX", -1, 1, 13, 2, Q("51.66508 mm")))
sketch4.addConstraint(Sketcher.Constraint("DistanceY", 24, 1, -1, 1, Q("26.675451 mm")))
sketch4.addConstraint(Sketcher.Constraint("DistanceY", 9, 1, 6, 1, Q("3.957121 mm")))
pad4 = doc.addObject("PartDesign::Pad", "Pad003")
body4.addObject(pad4)
pad4.Profile = sketch4
pad4.Length = 10
pad4.Reversed = True
doc.recompute()

fillet3 = doc.addObject("PartDesign::Fillet", "Fillet002")
body4.addObject(fillet3)
fillet3.Base = (pad4, edges_at(pad4, [
    (41.604, 5, -24.801),
    (43.378, 5, -26.928),
    (46.764, 5, -28.034),
    (49.518, 5, -27.329),
    (51.665, 5, -25.276),
    (52.49, 5, -22.025),
    (51.38, 5, -18.901),
    (48.048, 5, -16.714),
    (41.037, 5, -22.025),
]))
fillet3.Radius = 0.4

doc.recompute()
